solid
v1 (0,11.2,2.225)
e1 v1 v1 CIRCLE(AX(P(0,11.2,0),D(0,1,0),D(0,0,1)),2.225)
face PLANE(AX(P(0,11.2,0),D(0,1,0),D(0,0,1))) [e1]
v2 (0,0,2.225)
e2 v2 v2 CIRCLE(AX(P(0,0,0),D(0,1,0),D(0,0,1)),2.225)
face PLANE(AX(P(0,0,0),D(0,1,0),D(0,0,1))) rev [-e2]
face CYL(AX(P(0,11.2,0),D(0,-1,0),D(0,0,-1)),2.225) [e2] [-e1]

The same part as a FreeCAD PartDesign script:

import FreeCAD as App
import Part
import Sketcher

V = App.Vector
Q = App.Units.Quantity

doc = App.newDocument("Part")
body = doc.addObject("PartDesign::Body", "Body")

# Sketch on XZ plane
sketch1 = body.newObject("Sketcher::SketchObject", "Sketch")
sketch1.AttachmentSupport = (doc.getObject("XZ_Plane"), [""])
sketch1.MapMode = "FlatFace"
sketch1.addGeometry(Part.Circle(V(0, 0, 0), V(0, 0, 1), 2.225), False)
sketch1.addConstraint(Sketcher.Constraint("Coincident", 0, 3, -1, 1))
sketch1.addConstraint(Sketcher.Constraint("Diameter", 0, Q("4.45 mm")))
pad1 = body.newObject("PartDesign::Pad", "Pad")
pad1.Profile = sketch1
pad1.Length = 11.2
pad1.Reversed = True

doc.recompute()
